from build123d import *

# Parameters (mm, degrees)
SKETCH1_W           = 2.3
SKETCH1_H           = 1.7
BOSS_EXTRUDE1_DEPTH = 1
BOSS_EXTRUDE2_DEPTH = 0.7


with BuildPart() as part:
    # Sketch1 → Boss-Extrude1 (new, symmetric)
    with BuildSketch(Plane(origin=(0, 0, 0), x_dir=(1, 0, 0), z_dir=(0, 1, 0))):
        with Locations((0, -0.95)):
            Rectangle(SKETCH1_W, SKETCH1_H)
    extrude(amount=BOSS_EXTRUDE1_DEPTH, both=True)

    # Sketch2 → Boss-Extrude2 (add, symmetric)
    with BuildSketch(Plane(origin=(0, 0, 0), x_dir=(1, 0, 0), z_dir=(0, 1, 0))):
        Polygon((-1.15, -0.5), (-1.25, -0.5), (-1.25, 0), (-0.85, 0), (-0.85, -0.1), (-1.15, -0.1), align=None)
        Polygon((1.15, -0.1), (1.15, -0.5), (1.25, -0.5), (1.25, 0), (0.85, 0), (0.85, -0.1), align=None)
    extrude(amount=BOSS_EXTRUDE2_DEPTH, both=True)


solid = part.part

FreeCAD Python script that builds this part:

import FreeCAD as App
import Part
import Sketcher

V = App.Vector


def add_polygon(sketch, points):
    """Adds a closed chain of lines whose ends are joined by coincident constraints."""
    first, n = sketch.GeometryCount, len(points)
    for a, b in zip(points, points[1:] + points[:1]):
        sketch.addGeometry(Part.LineSegment(App.Vector(*a, 0), App.Vector(*b, 0)), False)
    for i in range(n):
        sketch.addConstraint(Sketcher.Constraint("Coincident", first + i, 2, first + (i + 1) % n, 1))

doc = App.newDocument("Part")
body = doc.addObject("PartDesign::Body", "Body")

# Sketch on XZ plane
sketch1 = body.newObject("Sketcher::SketchObject", "Sketch")
sketch1.AttachmentSupport = (doc.getObject("XZ_Plane"), [""])
sketch1.MapMode = "FlatFace"
add_polygon(sketch1, [(-1.15, 0.1), (-1.15, 1.8), (1.15, 1.8), (1.15, 0.1)])  # lines 0-3
sketch1.addConstraint(Sketcher.Constraint("Vertical", 0))
sketch1.addConstraint(Sketcher.Constraint("Horizontal", 1))
sketch1.addConstraint(Sketcher.Constraint("Vertical", 2))
sketch1.addConstraint(Sketcher.Constraint("Horizontal", 3))
sketch1.addConstraint(Sketcher.Constraint("DistanceX", 1, 1, 1, 2, 2.3))
sketch1.addConstraint(Sketcher.Constraint("DistanceY", 0, 1, 0, 2, 1.7))
sketch1.addConstraint(Sketcher.Constraint("DistanceY", -1, 1, 0, 2, 1.8))
sketch1.addConstraint(Sketcher.Constraint("DistanceX", 0, 2, -1, 1, 1.15))
pad1 = body.newObject("PartDesign::Pad", "Pad")
pad1.Profile = sketch1
pad1.Length = 2
pad1.Midplane = True

# Sketch on XZ plane
sketch2 = body.newObject("Sketcher::SketchObject", "Sketch001")
sketch2.AttachmentSupport = (doc.getObject("XZ_Plane"), [""])
sketch2.MapMode = "FlatFace"
add_polygon(sketch2, [(-1.25, 0.5), (-1.15, 0.5), (-1.15, 0.1), (-0.85, 0.1), (-0.85, 0), (-1.25, 0)])  # lines 0-5
add_polygon(sketch2, [(1.15, 0.1), (1.15, 0.5), (1.25, 0.5), (1.25, 0), (0.85, 0), (0.85, 0.1)])  # lines 6-11
sketch2.addConstraint(Sketcher.Constraint("Horizontal", 0))
sketch2.addConstraint(Sketcher.Constraint("Vertical", 1))
sketch2.addConstraint(Sketcher.Constraint("Horizontal", 2))
sketch2.addConstraint(Sketcher.Constraint("Vertical", 3))
sketch2.addConstraint(Sketcher.Constraint("Horizontal", 4))
sketch2.addConstraint(Sketcher.Constraint("Vertical", 5))
sketch2.addConstraint(Sketcher.Constraint("Vertical", 6))
sketch2.addConstraint(Sketcher.Constraint("Horizontal", 7))
sketch2.addConstraint(Sketcher.Constraint("Vertical", 8))
sketch2.addConstraint(Sketcher.Constraint("Horizontal", 9))
sketch2.addConstraint(Sketcher.Constraint("Vertical", 10))
sketch2.addConstraint(Sketcher.Constraint("Horizontal", 11))
sketch2.addConstraint(Sketcher.Constraint("Symmetric", 4, 2, 8, 2, -1, 1))
sketch2.addConstraint(Sketcher.Constraint("Symmetric", 0, 2, 6, 2, -2))
sketch2.addConstraint(Sketcher.Constraint("Symmetric", 3, 2, 9, 2, -2))
sketch2.addConstraint(Sketcher.Constraint("Horizontal", 2, 2, 10, 2))
sketch2.addConstraint(Sketcher.Constraint("Equal", 9, 1))
sketch2.addConstraint(Sketcher.Constraint("Equal", 7, 3))
sketch2.addConstraint(Sketcher.Constraint("DistanceX", 0, 1, 0, 2, 0.1))
sketch2.addConstraint(Sketcher.Constraint("DistanceX", 2, 1, 2, 2, 0.3))
sketch2.addConstraint(Sketcher.Constraint("DistanceX", 2, 2, 6, 2, 2.0))
pad2 = body.newObject("PartDesign::Pad", "Pad001")
pad2.Profile = sketch2
pad2.Length = 1.4
pad2.Midplane = True

doc.recompute()
